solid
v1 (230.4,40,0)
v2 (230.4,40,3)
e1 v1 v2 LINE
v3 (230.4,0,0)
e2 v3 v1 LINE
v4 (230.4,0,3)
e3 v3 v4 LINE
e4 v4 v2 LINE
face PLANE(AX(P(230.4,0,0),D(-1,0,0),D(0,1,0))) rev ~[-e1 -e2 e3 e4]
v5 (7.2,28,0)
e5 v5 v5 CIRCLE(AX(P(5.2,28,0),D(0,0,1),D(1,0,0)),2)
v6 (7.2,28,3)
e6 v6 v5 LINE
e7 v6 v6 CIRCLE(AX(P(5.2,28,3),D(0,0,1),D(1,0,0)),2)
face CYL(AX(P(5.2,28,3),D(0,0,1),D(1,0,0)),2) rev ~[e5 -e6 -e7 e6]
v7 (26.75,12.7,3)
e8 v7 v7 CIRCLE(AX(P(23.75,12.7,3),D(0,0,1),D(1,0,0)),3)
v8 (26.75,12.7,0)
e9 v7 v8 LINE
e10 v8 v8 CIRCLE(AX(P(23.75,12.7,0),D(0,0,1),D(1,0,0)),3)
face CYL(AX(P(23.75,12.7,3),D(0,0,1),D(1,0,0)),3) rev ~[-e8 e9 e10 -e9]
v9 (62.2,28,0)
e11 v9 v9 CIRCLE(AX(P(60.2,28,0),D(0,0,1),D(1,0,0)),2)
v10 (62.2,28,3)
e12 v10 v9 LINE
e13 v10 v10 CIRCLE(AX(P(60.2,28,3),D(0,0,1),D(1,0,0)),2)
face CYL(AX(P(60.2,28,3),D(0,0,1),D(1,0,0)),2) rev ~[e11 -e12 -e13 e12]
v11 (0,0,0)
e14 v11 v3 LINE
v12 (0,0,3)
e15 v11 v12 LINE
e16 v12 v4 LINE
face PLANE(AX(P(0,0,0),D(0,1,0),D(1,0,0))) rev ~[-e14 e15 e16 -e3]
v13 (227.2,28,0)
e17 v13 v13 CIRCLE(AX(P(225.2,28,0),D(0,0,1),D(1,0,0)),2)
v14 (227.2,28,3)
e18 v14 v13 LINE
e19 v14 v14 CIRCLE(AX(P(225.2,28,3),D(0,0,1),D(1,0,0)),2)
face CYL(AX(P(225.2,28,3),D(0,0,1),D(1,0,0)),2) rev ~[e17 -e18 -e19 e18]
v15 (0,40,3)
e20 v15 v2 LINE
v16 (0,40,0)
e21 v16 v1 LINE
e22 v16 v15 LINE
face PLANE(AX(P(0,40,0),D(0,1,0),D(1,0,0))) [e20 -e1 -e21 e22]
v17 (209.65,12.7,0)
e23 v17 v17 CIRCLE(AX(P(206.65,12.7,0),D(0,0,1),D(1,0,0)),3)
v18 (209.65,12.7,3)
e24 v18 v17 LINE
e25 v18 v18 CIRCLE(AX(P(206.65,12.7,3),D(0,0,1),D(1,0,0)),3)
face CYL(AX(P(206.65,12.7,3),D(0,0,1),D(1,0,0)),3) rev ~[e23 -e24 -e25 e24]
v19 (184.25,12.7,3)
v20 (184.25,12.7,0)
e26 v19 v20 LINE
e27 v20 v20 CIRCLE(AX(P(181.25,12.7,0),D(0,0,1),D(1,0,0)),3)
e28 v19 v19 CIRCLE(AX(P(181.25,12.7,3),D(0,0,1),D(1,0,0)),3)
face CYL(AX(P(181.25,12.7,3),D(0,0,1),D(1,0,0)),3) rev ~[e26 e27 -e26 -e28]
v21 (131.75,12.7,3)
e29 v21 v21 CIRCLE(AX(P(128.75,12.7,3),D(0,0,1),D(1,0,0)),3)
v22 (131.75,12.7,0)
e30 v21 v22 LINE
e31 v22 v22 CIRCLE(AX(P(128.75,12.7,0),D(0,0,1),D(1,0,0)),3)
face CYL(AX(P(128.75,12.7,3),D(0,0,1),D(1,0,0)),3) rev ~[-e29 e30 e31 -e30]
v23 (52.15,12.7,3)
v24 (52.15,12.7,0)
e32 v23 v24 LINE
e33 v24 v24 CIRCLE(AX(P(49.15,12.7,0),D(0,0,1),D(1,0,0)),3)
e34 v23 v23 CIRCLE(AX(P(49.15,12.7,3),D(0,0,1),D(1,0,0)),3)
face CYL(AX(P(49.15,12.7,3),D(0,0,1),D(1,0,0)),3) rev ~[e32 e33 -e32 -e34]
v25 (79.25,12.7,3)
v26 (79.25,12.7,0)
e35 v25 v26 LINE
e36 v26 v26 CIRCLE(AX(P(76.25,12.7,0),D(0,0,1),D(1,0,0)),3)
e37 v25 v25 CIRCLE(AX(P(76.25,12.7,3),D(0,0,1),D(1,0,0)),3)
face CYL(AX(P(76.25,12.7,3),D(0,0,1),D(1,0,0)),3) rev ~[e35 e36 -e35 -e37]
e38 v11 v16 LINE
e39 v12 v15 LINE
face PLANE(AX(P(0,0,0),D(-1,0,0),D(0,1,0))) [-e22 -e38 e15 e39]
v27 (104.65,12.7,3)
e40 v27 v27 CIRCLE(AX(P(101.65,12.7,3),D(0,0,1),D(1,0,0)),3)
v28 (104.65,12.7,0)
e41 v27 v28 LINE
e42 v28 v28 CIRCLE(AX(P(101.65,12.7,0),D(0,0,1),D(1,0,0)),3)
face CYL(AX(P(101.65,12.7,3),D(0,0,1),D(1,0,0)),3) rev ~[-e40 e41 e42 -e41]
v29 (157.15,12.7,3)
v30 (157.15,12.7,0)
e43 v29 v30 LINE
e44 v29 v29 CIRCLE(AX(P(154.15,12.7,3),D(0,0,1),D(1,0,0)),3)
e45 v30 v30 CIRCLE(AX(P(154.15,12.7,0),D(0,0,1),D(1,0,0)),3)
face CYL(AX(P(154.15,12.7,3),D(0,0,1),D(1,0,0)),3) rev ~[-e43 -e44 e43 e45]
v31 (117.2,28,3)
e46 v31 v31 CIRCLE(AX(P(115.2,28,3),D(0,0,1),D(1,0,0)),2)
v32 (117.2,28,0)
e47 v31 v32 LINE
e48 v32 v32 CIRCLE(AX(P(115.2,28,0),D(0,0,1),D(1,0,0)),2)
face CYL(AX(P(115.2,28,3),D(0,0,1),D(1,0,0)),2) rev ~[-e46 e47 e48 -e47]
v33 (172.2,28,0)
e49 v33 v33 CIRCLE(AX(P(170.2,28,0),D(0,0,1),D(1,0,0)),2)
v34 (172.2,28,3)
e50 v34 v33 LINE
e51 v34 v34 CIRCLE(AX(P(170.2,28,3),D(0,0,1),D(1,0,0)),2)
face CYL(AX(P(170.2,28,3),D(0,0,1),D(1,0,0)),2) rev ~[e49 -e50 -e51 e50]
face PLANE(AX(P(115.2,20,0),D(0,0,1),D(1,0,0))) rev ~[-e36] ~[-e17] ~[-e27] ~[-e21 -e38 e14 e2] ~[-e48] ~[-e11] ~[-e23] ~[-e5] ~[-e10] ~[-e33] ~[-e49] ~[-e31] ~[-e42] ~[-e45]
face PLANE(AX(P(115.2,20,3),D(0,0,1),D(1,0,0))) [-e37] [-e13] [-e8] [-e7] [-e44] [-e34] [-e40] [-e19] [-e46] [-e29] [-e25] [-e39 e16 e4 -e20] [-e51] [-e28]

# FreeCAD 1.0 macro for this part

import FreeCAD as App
import Part
import Sketcher

doc = App.newDocument("Part")
body = doc.addObject("PartDesign::Body", "Body")

sketch1 = body.newObject("Sketcher::SketchObject", "Sketch")
sketch1.AttachmentSupport = (doc.getObject("XY_Plane"), [""])
sketch1.MapMode = "FlatFace"
sketch1.addGeometry(Part.LineSegment(App.Vector(0, 40, 0), App.Vector(0, 0, 0)), False)
sketch1.addGeometry(Part.LineSegment(App.Vector(0, 0, 0), App.Vector(230, 0, 0)), False)
sketch1.addGeometry(Part.LineSegment(App.Vector(230, 0, 0), App.Vector(230, 40, 0)), False)
sketch1.addGeometry(Part.LineSegment(App.Vector(230, 40, 0), App.Vector(0, 40, 0)), False)
sketch1.addConstraint(Sketcher.Constraint("Coincident", 0, 2, 1, 1))
sketch1.addConstraint(Sketcher.Constraint("Coincident", 1, 2, 2, 1))
sketch1.addConstraint(Sketcher.Constraint("Coincident", 2, 2, 3, 1))
sketch1.addConstraint(Sketcher.Constraint("Coincident", 3, 2, 0, 1))
sketch1.addConstraint(Sketcher.Constraint("Vertical", 0))
sketch1.addConstraint(Sketcher.Constraint("Horizontal", 1))
sketch1.addConstraint(Sketcher.Constraint("Vertical", 2))
sketch1.addConstraint(Sketcher.Constraint("Horizontal", 3))
sketch1.addConstraint(Sketcher.Constraint("Coincident", 0, 2, -1, 1))
sketch1.addConstraint(Sketcher.Constraint("DistanceY", 0, 2, 0, 1, 40.0))
sketch1.addConstraint(Sketcher.Constraint("DistanceX", 1, 1, 1, 2, 230.4))
pad1 = body.newObject("PartDesign::Pad", "Pad")
pad1.Profile = sketch1
pad1.Length = 3

sketch2 = body.newObject("Sketcher::SketchObject", "Sketch001")
sketch2.AttachmentSupport = (doc.getObject("XY_Plane"), [""])
sketch2.MapMode = "FlatFace"
sketch2.AttachmentOffset = App.Placement(App.Vector(0, 0, 3), App.Rotation())
sketch2.addGeometry(Part.Circle(App.Vector(5.2, 28, 0), App.Vector(0, 0, 1), 2), False)
sketch2.addGeometry(Part.Circle(App.Vector(60.2, 28, 0), App.Vector(0, 0, 1), 2), False)
sketch2.addGeometry(Part.Circle(App.Vector(115.2, 28, 0), App.Vector(0, 0, 1), 2), False)
sketch2.addGeometry(Part.Circle(App.Vector(170.2, 28, 0), App.Vector(0, 0, 1), 2), False)
sketch2.addGeometry(Part.Circle(App.Vector(225.2, 28, 0), App.Vector(0, 0, 1), 2), False)
sketch2.addConstraint(Sketcher.Constraint("Equal", 0, 1))
sketch2.addConstraint(Sketcher.Constraint("Equal", 1, 2))
sketch2.addConstraint(Sketcher.Constraint("Equal", 2, 3))
sketch2.addConstraint(Sketcher.Constraint("Equal", 3, 4))
sketch2.addConstraint(Sketcher.Constraint("Horizontal", 0, 3, 1, 3))
sketch2.addConstraint(Sketcher.Constraint("Horizontal", 1, 3, 2, 3))
sketch2.addConstraint(Sketcher.Constraint("Horizontal", 2, 3, 3, 3))
sketch2.addConstraint(Sketcher.Constraint("Horizontal", 3, 3, 4, 3))
sketch2.addConstraint(Sketcher.Constraint("Diameter", 0, 4.0))
sketch2.addConstraint(Sketcher.Constraint("DistanceY", -1, 1, 0, 3, 28.0))
sketch2.addConstraint(Sketcher.Constraint("DistanceX", 0, 3, 1, 3, 55.0))
sketch2.addConstraint(Sketcher.Constraint("DistanceX", 1, 3, 2, 3, 55.0))
sketch2.addConstraint(Sketcher.Constraint("DistanceX", 2, 3, 3, 3, 55.0))
sketch2.addConstraint(Sketcher.Constraint("DistanceX", 3, 3, 4, 3, 55.0))
sketch2.addConstraint(Sketcher.Constraint("DistanceX", -1, 1, 0, 3, 5.2))
pocket1 = body.newObject("PartDesign::Pocket", "Pocket")
pocket1.Profile = sketch2
pocket1.Type = "ThroughAll"

sketch3 = body.newObject("Sketcher::SketchObject", "Sketch002")
sketch3.AttachmentSupport = (doc.getObject("XY_Plane"), [""])
sketch3.MapMode = "FlatFace"
sketch3.AttachmentOffset = App.Placement(App.Vector(0, 0, 3), App.Rotation())
sketch3.addGeometry(Part.Circle(App.Vector(23.8, 12.7, 0), App.Vector(0, 0, 1), 3), False)
sketch3.addGeometry(Part.Circle(App.Vector(49.1, 12.7, 0), App.Vector(0, 0, 1), 3), False)
sketch3.addGeometry(Part.Circle(App.Vector(76.2, 12.7, 0), App.Vector(0, 0, 1), 3), False)
sketch3.addGeometry(Part.Circle(App.Vector(101.7, 12.7, 0), App.Vector(0, 0, 1), 3), False)
sketch3.addGeometry(Part.Circle(App.Vector(128.8, 12.7, 0), App.Vector(0, 0, 1), 3), False)
sketch3.addGeometry(Part.Circle(App.Vector(154.2, 12.7, 0), App.Vector(0, 0, 1), 3), False)
sketch3.addGeometry(Part.Circle(App.Vector(181.2, 12.7, 0), App.Vector(0, 0, 1), 3), False)
sketch3.addGeometry(Part.Circle(App.Vector(206.7, 12.7, 0), App.Vector(0, 0, 1), 3), False)
sketch3.addConstraint(Sketcher.Constraint("Equal", 0, 1))
sketch3.addConstraint(Sketcher.Constraint("Equal", 1, 2))
sketch3.addConstraint(Sketcher.Constraint("Equal", 2, 3))
sketch3.addConstraint(Sketcher.Constraint("Equal", 3, 4))
sketch3.addConstraint(Sketcher.Constraint("Equal", 4, 5))
sketch3.addConstraint(Sketcher.Constraint("Equal", 5, 6))
sketch3.addConstraint(Sketcher.Constraint("Equal", 6, 7))
sketch3.addConstraint(Sketcher.Constraint("Horizontal", 0, 3, 1, 3))
sketch3.addConstraint(Sketcher.Constraint("Horizontal", 1, 3, 2, 3))
sketch3.addConstraint(Sketcher.Constraint("Horizontal", 2, 3, 3, 3))
sketch3.addConstraint(Sketcher.Constraint("Horizontal", 3, 3, 4, 3))
sketch3.addConstraint(Sketcher.Constraint("Horizontal", 4, 3, 5, 3))
sketch3.addConstraint(Sketcher.Constraint("Horizontal", 5, 3, 6, 3))
sketch3.addConstraint(Sketcher.Constraint("Horizontal", 6, 3, 7, 3))
sketch3.addConstraint(Sketcher.Constraint("Diameter", 0, 6.0))
sketch3.addConstraint(Sketcher.Constraint("DistanceX", 0, 3, 4, 3, 105.0))
sketch3.addConstraint(Sketcher.Constraint("DistanceX", 1, 3, 5, 3, 105.0))
sketch3.addConstraint(Sketcher.Constraint("DistanceX", 2, 3, 6, 3, 105.0))
sketch3.addConstraint(Sketcher.Constraint("DistanceX", 3, 3, 7, 3, 105.0))
sketch3.addConstraint(Sketcher.Constraint("DistanceY", -1, 1, 0, 3, 12.7))
sketch3.addConstraint(Sketcher.Constraint("DistanceX", 0, 3, 1, 3, 25.4))
sketch3.addConstraint(Sketcher.Constraint("DistanceX", 1, 3, 2, 3, 27.1))
sketch3.addConstraint(Sketcher.Constraint("DistanceX", 2, 3, 3, 3, 25.4))
sketch3.addConstraint(Sketcher.Constraint("DistanceX", -1, 1, 0, 3, 23.75))
pocket2 = body.newObject("PartDesign::Pocket", "Pocket001")
pocket2.Profile = sketch3
pocket2.Type = "ThroughAll"

doc.recompute()
